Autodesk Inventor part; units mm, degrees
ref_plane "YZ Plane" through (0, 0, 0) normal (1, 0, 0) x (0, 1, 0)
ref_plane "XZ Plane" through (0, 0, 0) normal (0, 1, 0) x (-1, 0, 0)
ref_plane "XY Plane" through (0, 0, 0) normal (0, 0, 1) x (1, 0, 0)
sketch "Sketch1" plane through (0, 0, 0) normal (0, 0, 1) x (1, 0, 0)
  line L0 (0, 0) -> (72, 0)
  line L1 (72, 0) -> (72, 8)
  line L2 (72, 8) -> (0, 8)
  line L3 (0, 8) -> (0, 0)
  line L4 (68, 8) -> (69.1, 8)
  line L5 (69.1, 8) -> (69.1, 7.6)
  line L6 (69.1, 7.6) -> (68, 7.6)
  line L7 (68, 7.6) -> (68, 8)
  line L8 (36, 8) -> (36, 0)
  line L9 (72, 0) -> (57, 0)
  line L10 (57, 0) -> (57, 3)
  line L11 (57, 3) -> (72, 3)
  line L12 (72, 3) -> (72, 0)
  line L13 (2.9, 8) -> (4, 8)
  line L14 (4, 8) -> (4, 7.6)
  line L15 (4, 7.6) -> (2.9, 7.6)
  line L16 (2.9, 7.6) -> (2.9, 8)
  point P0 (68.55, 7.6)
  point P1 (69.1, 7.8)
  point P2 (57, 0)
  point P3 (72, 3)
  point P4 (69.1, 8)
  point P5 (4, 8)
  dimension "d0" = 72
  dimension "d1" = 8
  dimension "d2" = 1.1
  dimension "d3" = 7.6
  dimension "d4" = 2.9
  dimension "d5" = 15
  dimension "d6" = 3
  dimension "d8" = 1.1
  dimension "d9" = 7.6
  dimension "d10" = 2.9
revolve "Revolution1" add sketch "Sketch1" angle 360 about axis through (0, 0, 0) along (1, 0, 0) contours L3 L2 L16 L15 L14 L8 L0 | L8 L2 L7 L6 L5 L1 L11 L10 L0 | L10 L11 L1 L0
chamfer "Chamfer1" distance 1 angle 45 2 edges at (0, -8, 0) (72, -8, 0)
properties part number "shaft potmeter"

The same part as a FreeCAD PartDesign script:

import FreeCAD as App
import Part
import Sketcher

V = App.Vector
Q = App.Units.Quantity


def edges_at(feature, points):
    """Names of the edges that pass closest to the given points."""
    edges = feature.Shape.Edges
    near = lambda p: min(range(len(edges)), key=lambda i: edges[i].distToShape(Part.Vertex(*p))[0])
    return sorted({f"Edge{near(p) + 1}" for p in points})

doc = App.newDocument("Part")
body = doc.addObject("PartDesign::Body", "Body")

# Sketch on XY plane
sketch1 = body.newObject("Sketcher::SketchObject", "Sketch")
sketch1.AttachmentSupport = (doc.getObject("XY_Plane"), [""])
sketch1.MapMode = "FlatFace"
sketch1.addGeometry(Part.LineSegment(V(0, 8, 0), V(0, 0, 0)), False)
sketch1.addGeometry(Part.LineSegment(V(0, 0, 0), V(72, 0, 0)), False)
sketch1.addGeometry(Part.LineSegment(V(72, 0, 0), V(72, 8, 0)), False)
sketch1.addGeometry(Part.LineSegment(V(72, 8, 0), V(69.1, 8, 0)), False)
sketch1.addGeometry(Part.LineSegment(V(69.1, 8, 0), V(69.1, 7.6, 0)), False)
sketch1.addGeometry(Part.LineSegment(V(69.1, 7.6, 0), V(68, 7.6, 0)), False)
sketch1.addGeometry(Part.LineSegment(V(68, 7.6, 0), V(68, 8, 0)), False)
sketch1.addGeometry(Part.LineSegment(V(68, 8, 0), V(4, 8, 0)), False)
sketch1.addGeometry(Part.LineSegment(V(4, 8, 0), V(4, 7.6, 0)), False)
sketch1.addGeometry(Part.LineSegment(V(4, 7.6, 0), V(2.9, 7.6, 0)), False)
sketch1.addGeometry(Part.LineSegment(V(2.9, 7.6, 0), V(2.9, 8, 0)), False)
sketch1.addGeometry(Part.LineSegment(V(2.9, 8, 0), V(0, 8, 0)), False)
sketch1.addConstraint(Sketcher.Constraint("Coincident", 0, 2, 1, 1))
sketch1.addConstraint(Sketcher.Constraint("Coincident", 1, 2, 2, 1))
sketch1.addConstraint(Sketcher.Constraint("Coincident", 2, 2, 3, 1))
sketch1.addConstraint(Sketcher.Constraint("Coincident", 3, 2, 4, 1))
sketch1.addConstraint(Sketcher.Constraint("Coincident", 4, 2, 5, 1))
sketch1.addConstraint(Sketcher.Constraint("Coincident", 5, 2, 6, 1))
sketch1.addConstraint(Sketcher.Constraint("Coincident", 6, 2, 7, 1))
sketch1.addConstraint(Sketcher.Constraint("Coincident", 7, 2, 8, 1))
sketch1.addConstraint(Sketcher.Constraint("Coincident", 8, 2, 9, 1))
sketch1.addConstraint(Sketcher.Constraint("Coincident", 9, 2, 10, 1))
sketch1.addConstraint(Sketcher.Constraint("Coincident", 10, 2, 11, 1))
sketch1.addConstraint(Sketcher.Constraint("Coincident", 11, 2, 0, 1))
sketch1.addConstraint(Sketcher.Constraint("Vertical", 0))
sketch1.addConstraint(Sketcher.Constraint("Horizontal", 1))
sketch1.addConstraint(Sketcher.Constraint("Vertical", 2))
sketch1.addConstraint(Sketcher.Constraint("Horizontal", 3))
sketch1.addConstraint(Sketcher.Constraint("Vertical", 4))
sketch1.addConstraint(Sketcher.Constraint("Horizontal", 5))
sketch1.addConstraint(Sketcher.Constraint("Vertical", 6))
sketch1.addConstraint(Sketcher.Constraint("Horizontal", 7))
sketch1.addConstraint(Sketcher.Constraint("Vertical", 8))
sketch1.addConstraint(Sketcher.Constraint("Horizontal", 9))
sketch1.addConstraint(Sketcher.Constraint("Vertical", 10))
sketch1.addConstraint(Sketcher.Constraint("Horizontal", 11))
sketch1.addConstraint(Sketcher.Constraint("Coincident", 0, 2, -1, 1))
sketch1.addConstraint(Sketcher.Constraint("Horizontal", 3, 2, 6, 2))
sketch1.addConstraint(Sketcher.Constraint("Horizontal", 5, 2, 8, 2))
sketch1.addConstraint(Sketcher.Constraint("Horizontal", 7, 2, 10, 2))
sketch1.addConstraint(Sketcher.Constraint("Equal", 5, 9))
sketch1.addConstraint(Sketcher.Constraint("Equal", 3, 11))
sketch1.addConstraint(Sketcher.Constraint("DistanceX", 1, 1, 1, 2, Q("72 mm")))
sketch1.addConstraint(Sketcher.Constraint("DistanceY", 0, 2, 0, 1, Q("8 mm")))
sketch1.addConstraint(Sketcher.Constraint("DistanceX", 3, 2, 3, 1, Q("2.9 mm")))
sketch1.addConstraint(Sketcher.Constraint("DistanceX", 5, 2, 5, 1, Q("1.1 mm")))
sketch1.addConstraint(Sketcher.Constraint("DistanceY", -1, 1, 4, 2, Q("7.6 mm")))
revolution = body.newObject("PartDesign::Revolution", "Revolution")
revolution.Profile = sketch1
revolution.ReferenceAxis = (sketch1, ["H_Axis"])
revolution.Angle = 360
doc.recompute()

chamfer = body.newObject("PartDesign::Chamfer", "Chamfer")
chamfer.Base = (revolution, edges_at(revolution, [(0, -8, 0), (72, -8, 0)]))
chamfer.Size = 1

doc.recompute()
